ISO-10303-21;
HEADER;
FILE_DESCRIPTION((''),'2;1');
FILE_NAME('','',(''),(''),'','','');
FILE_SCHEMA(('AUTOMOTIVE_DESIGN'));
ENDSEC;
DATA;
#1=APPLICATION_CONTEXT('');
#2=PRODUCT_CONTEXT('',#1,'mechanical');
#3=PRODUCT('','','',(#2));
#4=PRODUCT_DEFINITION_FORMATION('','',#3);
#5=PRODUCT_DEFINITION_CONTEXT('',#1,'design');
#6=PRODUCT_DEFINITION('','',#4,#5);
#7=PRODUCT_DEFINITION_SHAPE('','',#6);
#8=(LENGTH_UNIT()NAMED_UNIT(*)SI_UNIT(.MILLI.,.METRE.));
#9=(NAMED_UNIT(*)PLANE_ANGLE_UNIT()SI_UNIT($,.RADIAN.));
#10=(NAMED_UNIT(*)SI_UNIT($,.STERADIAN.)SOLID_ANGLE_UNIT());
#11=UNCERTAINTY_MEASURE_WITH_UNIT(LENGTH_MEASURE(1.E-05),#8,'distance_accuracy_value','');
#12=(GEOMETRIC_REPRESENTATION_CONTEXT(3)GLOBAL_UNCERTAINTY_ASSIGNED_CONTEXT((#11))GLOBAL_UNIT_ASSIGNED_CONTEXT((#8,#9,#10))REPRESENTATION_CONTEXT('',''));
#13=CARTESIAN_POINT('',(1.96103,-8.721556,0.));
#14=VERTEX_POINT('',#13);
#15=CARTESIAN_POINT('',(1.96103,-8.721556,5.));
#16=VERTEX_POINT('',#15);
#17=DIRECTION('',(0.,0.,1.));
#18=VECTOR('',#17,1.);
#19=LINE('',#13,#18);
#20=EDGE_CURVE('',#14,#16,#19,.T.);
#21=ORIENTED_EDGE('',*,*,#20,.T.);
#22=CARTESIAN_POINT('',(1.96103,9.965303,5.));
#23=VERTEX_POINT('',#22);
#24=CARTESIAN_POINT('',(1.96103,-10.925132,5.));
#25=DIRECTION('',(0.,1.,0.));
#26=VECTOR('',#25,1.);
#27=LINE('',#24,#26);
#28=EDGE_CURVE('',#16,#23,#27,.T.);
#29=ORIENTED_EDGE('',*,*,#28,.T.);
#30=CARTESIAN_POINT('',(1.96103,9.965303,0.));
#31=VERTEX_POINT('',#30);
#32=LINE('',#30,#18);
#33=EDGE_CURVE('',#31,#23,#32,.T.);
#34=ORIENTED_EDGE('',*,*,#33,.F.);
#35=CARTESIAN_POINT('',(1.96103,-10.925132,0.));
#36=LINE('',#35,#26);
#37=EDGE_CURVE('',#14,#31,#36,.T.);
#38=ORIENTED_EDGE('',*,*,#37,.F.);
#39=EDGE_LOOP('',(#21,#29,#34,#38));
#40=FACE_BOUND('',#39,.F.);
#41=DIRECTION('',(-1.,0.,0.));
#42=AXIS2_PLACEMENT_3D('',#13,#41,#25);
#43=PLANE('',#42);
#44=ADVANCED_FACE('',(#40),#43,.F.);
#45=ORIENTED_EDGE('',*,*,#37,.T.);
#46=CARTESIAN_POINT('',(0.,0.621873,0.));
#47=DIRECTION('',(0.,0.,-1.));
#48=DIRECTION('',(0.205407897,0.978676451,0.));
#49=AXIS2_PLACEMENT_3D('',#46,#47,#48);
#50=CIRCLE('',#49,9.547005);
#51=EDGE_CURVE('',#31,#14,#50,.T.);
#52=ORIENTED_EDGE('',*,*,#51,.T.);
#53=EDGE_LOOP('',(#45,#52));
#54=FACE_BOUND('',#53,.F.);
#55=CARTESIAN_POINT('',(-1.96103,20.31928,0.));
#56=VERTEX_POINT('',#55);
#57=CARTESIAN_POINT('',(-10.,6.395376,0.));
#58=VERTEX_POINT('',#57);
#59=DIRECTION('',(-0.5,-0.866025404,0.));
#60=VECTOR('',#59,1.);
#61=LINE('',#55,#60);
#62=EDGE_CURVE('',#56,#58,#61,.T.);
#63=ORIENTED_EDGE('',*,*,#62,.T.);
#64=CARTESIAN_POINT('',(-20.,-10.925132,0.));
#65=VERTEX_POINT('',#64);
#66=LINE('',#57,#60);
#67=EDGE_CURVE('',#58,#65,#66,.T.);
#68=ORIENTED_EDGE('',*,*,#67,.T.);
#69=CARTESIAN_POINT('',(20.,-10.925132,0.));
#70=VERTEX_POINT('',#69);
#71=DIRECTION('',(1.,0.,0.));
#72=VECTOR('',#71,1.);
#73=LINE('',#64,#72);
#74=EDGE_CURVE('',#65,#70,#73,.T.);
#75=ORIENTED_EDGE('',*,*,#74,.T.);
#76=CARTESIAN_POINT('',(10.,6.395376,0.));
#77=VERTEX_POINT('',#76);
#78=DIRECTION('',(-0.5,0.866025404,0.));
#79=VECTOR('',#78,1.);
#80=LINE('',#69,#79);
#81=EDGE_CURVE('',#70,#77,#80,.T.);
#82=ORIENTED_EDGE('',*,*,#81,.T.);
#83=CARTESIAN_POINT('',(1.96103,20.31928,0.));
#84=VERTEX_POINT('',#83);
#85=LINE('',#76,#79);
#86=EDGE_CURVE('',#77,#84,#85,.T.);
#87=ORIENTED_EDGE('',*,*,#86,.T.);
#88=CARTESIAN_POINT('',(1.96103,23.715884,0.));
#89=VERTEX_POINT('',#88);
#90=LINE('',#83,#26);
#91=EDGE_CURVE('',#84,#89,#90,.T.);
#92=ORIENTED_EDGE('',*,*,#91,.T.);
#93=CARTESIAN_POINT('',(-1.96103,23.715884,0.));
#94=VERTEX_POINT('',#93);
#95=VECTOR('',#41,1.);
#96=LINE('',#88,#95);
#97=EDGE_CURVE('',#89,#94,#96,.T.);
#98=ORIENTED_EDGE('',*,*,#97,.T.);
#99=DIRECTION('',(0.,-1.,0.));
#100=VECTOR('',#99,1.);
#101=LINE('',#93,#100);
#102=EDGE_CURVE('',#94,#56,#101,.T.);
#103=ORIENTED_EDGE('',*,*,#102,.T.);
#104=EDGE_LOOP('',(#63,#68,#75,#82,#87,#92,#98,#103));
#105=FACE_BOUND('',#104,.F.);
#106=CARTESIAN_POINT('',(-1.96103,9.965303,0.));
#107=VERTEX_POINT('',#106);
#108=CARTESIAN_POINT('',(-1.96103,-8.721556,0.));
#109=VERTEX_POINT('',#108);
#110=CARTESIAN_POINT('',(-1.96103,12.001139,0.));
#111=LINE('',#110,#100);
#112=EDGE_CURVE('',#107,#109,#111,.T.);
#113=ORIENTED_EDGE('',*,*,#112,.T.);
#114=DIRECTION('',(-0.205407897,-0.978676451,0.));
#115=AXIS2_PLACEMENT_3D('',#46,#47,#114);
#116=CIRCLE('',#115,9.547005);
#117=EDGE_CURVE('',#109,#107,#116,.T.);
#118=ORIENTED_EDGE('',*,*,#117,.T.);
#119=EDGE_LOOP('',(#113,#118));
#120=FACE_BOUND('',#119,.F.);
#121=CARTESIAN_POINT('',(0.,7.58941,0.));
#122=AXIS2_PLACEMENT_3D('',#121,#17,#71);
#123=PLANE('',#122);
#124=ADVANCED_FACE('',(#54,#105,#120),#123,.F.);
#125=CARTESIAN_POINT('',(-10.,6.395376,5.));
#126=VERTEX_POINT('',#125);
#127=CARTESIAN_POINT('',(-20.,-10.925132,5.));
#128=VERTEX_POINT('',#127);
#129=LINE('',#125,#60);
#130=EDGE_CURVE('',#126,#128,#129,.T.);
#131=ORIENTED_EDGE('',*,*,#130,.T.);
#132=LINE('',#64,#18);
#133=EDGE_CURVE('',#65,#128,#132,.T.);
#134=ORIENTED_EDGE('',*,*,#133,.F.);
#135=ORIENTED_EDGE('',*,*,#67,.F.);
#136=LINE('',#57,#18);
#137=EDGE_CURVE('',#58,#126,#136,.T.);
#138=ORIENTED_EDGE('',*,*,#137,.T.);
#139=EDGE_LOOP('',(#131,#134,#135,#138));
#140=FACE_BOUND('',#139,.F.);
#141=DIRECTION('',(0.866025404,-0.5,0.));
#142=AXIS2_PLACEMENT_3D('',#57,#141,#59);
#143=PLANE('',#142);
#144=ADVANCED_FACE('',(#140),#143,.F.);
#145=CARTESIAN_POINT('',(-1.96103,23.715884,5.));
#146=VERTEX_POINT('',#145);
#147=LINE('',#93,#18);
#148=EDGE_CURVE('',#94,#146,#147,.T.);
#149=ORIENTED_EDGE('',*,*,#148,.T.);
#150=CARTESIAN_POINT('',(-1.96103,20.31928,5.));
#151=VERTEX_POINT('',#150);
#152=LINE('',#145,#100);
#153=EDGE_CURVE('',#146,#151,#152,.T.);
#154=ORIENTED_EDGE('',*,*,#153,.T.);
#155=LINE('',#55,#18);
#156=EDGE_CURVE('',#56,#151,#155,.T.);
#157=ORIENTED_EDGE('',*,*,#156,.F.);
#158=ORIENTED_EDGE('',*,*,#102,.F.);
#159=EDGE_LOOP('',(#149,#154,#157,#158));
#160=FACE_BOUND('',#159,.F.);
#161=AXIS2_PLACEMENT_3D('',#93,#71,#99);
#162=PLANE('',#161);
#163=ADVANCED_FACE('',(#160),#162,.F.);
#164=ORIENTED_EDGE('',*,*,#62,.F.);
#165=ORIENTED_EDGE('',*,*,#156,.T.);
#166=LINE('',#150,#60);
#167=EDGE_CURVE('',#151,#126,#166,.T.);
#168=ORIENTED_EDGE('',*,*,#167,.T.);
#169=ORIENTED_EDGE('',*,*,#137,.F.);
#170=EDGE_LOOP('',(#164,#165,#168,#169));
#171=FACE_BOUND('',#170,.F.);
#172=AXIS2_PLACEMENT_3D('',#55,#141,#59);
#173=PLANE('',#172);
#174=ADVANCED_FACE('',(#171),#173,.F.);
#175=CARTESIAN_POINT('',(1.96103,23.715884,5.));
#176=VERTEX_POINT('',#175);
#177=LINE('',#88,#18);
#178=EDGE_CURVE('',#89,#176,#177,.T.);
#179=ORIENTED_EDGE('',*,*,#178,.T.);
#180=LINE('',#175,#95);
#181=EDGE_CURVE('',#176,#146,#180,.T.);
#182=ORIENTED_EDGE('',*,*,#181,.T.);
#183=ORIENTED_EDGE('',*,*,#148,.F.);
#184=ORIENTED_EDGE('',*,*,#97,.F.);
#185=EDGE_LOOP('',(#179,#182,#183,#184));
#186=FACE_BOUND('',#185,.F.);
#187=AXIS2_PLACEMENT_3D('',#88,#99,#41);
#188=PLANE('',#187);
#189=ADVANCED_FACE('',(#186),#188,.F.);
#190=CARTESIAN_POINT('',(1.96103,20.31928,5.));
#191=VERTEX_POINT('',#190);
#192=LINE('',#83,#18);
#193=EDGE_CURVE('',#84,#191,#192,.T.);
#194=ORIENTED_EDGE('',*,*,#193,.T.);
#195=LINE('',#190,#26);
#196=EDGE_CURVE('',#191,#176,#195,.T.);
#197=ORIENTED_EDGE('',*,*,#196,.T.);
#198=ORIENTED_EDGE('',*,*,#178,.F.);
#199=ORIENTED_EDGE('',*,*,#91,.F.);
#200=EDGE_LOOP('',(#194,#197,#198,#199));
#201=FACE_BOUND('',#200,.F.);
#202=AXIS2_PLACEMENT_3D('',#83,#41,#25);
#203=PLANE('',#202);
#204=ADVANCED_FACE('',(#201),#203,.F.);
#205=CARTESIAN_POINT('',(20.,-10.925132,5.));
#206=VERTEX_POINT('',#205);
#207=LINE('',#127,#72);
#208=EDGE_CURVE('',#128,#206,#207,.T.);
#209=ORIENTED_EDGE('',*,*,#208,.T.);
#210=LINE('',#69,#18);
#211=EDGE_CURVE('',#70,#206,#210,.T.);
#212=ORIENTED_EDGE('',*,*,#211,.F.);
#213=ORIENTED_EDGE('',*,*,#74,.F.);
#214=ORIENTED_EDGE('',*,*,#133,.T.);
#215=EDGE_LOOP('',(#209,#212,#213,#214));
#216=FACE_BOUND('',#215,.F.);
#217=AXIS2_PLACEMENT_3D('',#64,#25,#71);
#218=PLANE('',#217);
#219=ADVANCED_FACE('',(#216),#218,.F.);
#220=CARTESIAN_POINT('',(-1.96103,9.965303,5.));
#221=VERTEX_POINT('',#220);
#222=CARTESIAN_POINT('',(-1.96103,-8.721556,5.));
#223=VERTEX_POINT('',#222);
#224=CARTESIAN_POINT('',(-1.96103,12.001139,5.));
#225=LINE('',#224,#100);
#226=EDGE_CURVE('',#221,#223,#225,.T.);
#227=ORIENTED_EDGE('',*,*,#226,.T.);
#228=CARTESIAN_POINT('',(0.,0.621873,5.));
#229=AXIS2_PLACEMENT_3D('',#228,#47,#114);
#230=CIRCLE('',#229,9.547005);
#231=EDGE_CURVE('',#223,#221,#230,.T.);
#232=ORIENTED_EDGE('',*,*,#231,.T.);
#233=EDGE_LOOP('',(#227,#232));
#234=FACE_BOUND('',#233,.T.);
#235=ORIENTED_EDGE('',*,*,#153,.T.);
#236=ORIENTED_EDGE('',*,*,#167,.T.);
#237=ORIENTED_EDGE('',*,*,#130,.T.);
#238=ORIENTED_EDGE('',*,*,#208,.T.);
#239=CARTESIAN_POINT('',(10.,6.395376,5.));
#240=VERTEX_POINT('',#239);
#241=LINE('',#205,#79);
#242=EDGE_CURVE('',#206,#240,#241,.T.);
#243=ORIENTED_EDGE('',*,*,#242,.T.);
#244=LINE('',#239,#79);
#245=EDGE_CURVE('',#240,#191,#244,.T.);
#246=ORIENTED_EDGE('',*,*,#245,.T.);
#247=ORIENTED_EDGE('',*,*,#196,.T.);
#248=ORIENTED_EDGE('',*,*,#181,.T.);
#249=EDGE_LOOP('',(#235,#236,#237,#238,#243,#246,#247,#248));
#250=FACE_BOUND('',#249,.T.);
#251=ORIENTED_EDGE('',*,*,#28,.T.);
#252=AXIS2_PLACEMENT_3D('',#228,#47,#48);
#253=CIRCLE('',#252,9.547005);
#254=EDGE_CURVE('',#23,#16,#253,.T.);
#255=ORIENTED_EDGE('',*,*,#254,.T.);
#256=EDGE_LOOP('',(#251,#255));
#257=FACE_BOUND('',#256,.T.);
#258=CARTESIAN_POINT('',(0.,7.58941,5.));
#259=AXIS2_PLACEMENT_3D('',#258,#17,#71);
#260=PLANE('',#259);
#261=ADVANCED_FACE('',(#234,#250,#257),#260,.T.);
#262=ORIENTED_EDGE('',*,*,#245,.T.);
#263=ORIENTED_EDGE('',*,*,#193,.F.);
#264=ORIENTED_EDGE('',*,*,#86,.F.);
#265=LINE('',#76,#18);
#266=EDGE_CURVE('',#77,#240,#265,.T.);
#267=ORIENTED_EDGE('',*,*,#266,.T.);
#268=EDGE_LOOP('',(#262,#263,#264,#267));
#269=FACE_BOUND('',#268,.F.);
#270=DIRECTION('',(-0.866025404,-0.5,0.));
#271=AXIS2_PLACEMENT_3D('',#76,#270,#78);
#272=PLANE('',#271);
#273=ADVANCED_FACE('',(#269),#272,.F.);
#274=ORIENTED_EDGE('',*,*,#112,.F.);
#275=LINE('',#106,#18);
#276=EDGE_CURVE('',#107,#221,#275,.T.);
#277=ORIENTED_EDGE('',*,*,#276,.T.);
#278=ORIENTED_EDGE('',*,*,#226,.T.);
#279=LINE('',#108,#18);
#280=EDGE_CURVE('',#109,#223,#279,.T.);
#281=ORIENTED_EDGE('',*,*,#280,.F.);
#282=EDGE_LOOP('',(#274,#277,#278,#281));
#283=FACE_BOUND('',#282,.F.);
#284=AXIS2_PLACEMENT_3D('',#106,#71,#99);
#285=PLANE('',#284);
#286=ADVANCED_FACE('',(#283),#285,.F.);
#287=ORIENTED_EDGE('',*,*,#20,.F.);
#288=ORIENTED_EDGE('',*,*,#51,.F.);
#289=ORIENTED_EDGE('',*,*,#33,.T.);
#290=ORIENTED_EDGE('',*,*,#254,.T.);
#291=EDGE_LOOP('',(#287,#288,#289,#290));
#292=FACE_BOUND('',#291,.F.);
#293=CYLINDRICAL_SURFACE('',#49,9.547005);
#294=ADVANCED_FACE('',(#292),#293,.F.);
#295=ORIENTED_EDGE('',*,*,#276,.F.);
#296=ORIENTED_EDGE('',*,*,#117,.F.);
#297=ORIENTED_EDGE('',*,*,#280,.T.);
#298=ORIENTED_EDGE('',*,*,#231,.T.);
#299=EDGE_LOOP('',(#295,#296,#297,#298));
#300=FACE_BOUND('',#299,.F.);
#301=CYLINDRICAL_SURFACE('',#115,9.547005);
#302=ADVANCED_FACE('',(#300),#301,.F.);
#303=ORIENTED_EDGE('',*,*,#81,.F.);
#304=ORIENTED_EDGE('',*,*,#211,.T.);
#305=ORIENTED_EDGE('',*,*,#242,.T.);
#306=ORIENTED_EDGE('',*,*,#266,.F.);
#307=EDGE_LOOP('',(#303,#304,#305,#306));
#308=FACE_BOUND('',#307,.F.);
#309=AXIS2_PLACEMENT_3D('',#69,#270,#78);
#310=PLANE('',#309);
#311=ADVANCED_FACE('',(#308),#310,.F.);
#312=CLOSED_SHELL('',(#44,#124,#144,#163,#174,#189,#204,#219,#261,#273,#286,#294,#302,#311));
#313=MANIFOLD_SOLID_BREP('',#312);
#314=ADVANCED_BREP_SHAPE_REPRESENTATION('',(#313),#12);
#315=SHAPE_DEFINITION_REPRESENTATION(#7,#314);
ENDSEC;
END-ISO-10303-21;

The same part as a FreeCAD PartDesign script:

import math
import FreeCAD as App
import Part
import Sketcher
Q = App.Units.Quantity


def add_polygon(sketch, points):
    """Adds a closed chain of lines whose ends are joined by coincident constraints."""
    first, n = sketch.GeometryCount, len(points)
    for a, b in zip(points, points[1:] + points[:1]):
        sketch.addGeometry(Part.LineSegment(App.Vector(*a, 0), App.Vector(*b, 0)), False)
    for i in range(n):
        sketch.addConstraint(Sketcher.Constraint("Coincident", first + i, 2, first + (i + 1) % n, 1))

doc = App.newDocument("Part")
body = doc.addObject("PartDesign::Body", "Body")

# Sketch on XY plane
sketch1 = body.newObject("Sketcher::SketchObject", "Sketch")
sketch1.AttachmentSupport = (doc.getObject("XY_Plane"), [""])
sketch1.MapMode = "FlatFace"
add_polygon(sketch1, [(20, -10.925132), (10, 6.395376), (1.96103, 20.31928), (1.96103, 23.715884), (-1.96103, 23.715884), (-1.96103, 20.31928), (-10, 6.395376), (-20, -10.925132)])  # lines 0-7
sketch1.addGeometry(Part.LineSegment(App.Vector(-1.96103, 9.965303, 0), App.Vector(-1.96103, -8.721556, 0)), False)  # 8
sketch1.addGeometry(Part.ArcOfCircle(Part.Circle(App.Vector(0, 0.621873, 0), App.Vector(0, 0, 1), 9.547005), math.radians(101.853378), math.radians(258.146622)), False)  # 9
sketch1.addGeometry(Part.LineSegment(App.Vector(1.96103, -8.721556, 0), App.Vector(1.96103, 9.965303, 0)), False)  # 10
sketch1.addGeometry(Part.ArcOfCircle(Part.Circle(App.Vector(0, 0.621873, 0), App.Vector(0, 0, 1), 9.547005), math.radians(-78.146622), math.radians(78.146622)), False)  # 11
sketch1.addConstraint([
    Sketcher.Constraint("Coincident", 8, 1, 9, 1),
    Sketcher.Constraint("Coincident", 9, 2, 8, 2),
    Sketcher.Constraint("Coincident", 10, 1, 11, 1),
    Sketcher.Constraint("Coincident", 11, 2, 10, 2),
    Sketcher.Constraint("Vertical", 2),
    Sketcher.Constraint("Horizontal", 3),
    Sketcher.Constraint("Vertical", 4),
    Sketcher.Constraint("Horizontal", 7),
    Sketcher.Constraint("Vertical", 8),
    Sketcher.Constraint("Vertical", 10),
    Sketcher.Constraint("Coincident", 11, 3, 9, 3),
    Sketcher.Constraint("Equal", 9, 11),
    Sketcher.Constraint("Symmetric", 1, 2, 4, 2, -2),
    Sketcher.Constraint("Symmetric", 0, 2, 5, 2, -2),
    Sketcher.Constraint("Symmetric", 9, 2, 10, 1, -2),
    Sketcher.Constraint("Parallel", 0, 1),
    Sketcher.Constraint("Parallel", 5, 6),
    Sketcher.Constraint("Vertical", 4, 2, 8, 1),
    Sketcher.Constraint("DistanceX", 7, 1, 7, 2, Q("40 mm")),
    Sketcher.Constraint("Angle", 0, Q("120 deg")),
    Sketcher.Constraint("Distance", 0, Q("20 mm")),
    Sketcher.Constraint("Radius", 9, Q("9.547005 mm")),
    Sketcher.Constraint("DistanceX", 3, 2, 3, 1, Q("3.922061 mm")),
    Sketcher.Constraint("DistanceY", 2, 1, 2, 2, Q("3.396604 mm")),
    Sketcher.Constraint("DistanceY", -1, 1, 1, 2, Q("20.31928 mm")),
    Sketcher.Constraint("DistanceY", 9, 3, 2, 2, Q("23.094011 mm")),
])
pad1 = body.newObject("PartDesign::Pad", "Pad")
pad1.Profile = sketch1
pad1.Length = 5

doc.recompute()
